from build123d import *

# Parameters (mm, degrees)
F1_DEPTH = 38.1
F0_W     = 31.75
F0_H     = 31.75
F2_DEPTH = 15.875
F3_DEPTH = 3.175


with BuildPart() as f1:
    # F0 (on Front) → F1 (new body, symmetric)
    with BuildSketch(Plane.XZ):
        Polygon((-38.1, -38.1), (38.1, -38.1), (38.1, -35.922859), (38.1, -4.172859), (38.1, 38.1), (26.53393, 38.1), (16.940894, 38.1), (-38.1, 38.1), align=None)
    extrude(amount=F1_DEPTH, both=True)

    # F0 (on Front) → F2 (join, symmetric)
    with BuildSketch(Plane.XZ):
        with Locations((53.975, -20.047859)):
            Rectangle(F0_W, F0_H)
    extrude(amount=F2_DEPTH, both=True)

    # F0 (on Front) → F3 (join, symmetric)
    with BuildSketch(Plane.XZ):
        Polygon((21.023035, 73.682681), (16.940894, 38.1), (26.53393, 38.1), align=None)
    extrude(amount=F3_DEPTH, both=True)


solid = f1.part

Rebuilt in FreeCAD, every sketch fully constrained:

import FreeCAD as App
import Part
import Sketcher
from FreeCAD import Vector
Q = App.Units.Quantity

doc = App.newDocument("Part")
params = doc.addObject("Spreadsheet::Sheet", "Params")
for row, (alias, value) in enumerate([
    ("sketch1_width", "3 in"),
    ("pad1_length", "3 in"),
    ("sketch2_width", "1.25 in"),
    ("pad2_length", "1.25 in"),
    ("pad3_length", "0.25 in"),
], start=1):
    params.set(f"A{row}", alias)
    params.set(f"B{row}", "=" + value)
    params.setAlias(f"B{row}", alias)

body = doc.addObject("PartDesign::Body", "Body")

# Sketch on XZ plane
sketch1 = body.newObject("Sketcher::SketchObject", "Sketch")
sketch1.AttachmentSupport = (doc.getObject("XZ_Plane"), [""])
sketch1.MapMode = "FlatFace"
sketch1.addGeometry([
    Part.LineSegment(Vector(-38, -38, 0), Vector(38, -38, 0)),
    Part.LineSegment(Vector(38, -38, 0), Vector(38, 38, 0)),
    Part.LineSegment(Vector(38, 38, 0), Vector(-38, 38, 0)),
    Part.LineSegment(Vector(-38, 38, 0), Vector(-38, -38, 0)),
], False)
sketch1.addConstraint([
    Sketcher.Constraint("Coincident", 0, 2, 1, 1),
    Sketcher.Constraint("Coincident", 1, 2, 2, 1),
    Sketcher.Constraint("Coincident", 2, 2, 3, 1),
    Sketcher.Constraint("Coincident", 3, 2, 0, 1),
    Sketcher.Constraint("Horizontal", 0),
    Sketcher.Constraint("Vertical", 1),
    Sketcher.Constraint("Horizontal", 2),
    Sketcher.Constraint("Vertical", 3),
    Sketcher.Constraint("Symmetric", 0, 2, 2, 2, -1, 1),
    Sketcher.Constraint("Equal", 2, 1),
    Sketcher.Constraint("DistanceX", 0, 1, 0, 2, Q("3 in")),
])
sketch1.setExpression("Constraints[10]", "Params.sketch1_width")
pad1 = body.newObject("PartDesign::Pad", "Pad")
pad1.Profile = sketch1
pad1.setExpression("Length", "Params.pad1_length")
pad1.Midplane = True

# Sketch on XZ plane
sketch2 = body.newObject("Sketcher::SketchObject", "Sketch001")
sketch2.AttachmentSupport = (doc.getObject("XZ_Plane"), [""])
sketch2.MapMode = "FlatFace"
sketch2.addGeometry([
    Part.LineSegment(Vector(38, -4, 0), Vector(38, -36, 0)),
    Part.LineSegment(Vector(38, -36, 0), Vector(70, -36, 0)),
    Part.LineSegment(Vector(70, -36, 0), Vector(70, -4, 0)),
    Part.LineSegment(Vector(70, -4, 0), Vector(38, -4, 0)),
], False)
sketch2.addConstraint([
    Sketcher.Constraint("Coincident", 0, 2, 1, 1),
    Sketcher.Constraint("Coincident", 1, 2, 2, 1),
    Sketcher.Constraint("Coincident", 2, 2, 3, 1),
    Sketcher.Constraint("Coincident", 3, 2, 0, 1),
    Sketcher.Constraint("Vertical", 0),
    Sketcher.Constraint("Horizontal", 1),
    Sketcher.Constraint("Vertical", 2),
    Sketcher.Constraint("Horizontal", 3),
    Sketcher.Constraint("Equal", 3, 0),
    Sketcher.Constraint("DistanceX", 1, 1, 1, 2, Q("1.25 in")),
    Sketcher.Constraint("DistanceX", -1, 1, 0, 2, Q("1.5 in")),
    Sketcher.Constraint("DistanceY", 0, 2, -1, 1, Q("35.922859 mm")),
])
sketch2.setExpression("Constraints[9]", "Params.sketch2_width")
pad2 = body.newObject("PartDesign::Pad", "Pad001")
pad2.Profile = sketch2
pad2.setExpression("Length", "Params.pad2_length")
pad2.Midplane = True

# Sketch on XZ plane
sketch3 = body.newObject("Sketcher::SketchObject", "Sketch002")
sketch3.AttachmentSupport = (doc.getObject("XZ_Plane"), [""])
sketch3.MapMode = "FlatFace"
sketch3.addGeometry([
    Part.LineSegment(Vector(21, 74, 0), Vector(17, 38, 0)),
    Part.LineSegment(Vector(17, 38, 0), Vector(27, 38, 0)),
    Part.LineSegment(Vector(27, 38, 0), Vector(21, 74, 0)),
], False)
sketch3.addConstraint([
    Sketcher.Constraint("Coincident", 0, 2, 1, 1),
    Sketcher.Constraint("Coincident", 1, 2, 2, 1),
    Sketcher.Constraint("Coincident", 2, 2, 0, 1),
    Sketcher.Constraint("Horizontal", 1),
    Sketcher.Constraint("DistanceY", -1, 1, 0, 2, Q("1.5 in")),
    Sketcher.Constraint("DistanceX", 1, 1, 1, 2, Q("9.593036 mm")),
    Sketcher.Constraint("DistanceX", -1, 1, 1, 2, Q("26.53393 mm")),
    Sketcher.Constraint("DistanceY", -1, 1, 2, 2, Q("73.682681 mm")),
    Sketcher.Constraint("DistanceX", 0, 2, 2, 2, Q("4.082141 mm")),
])
pad3 = body.newObject("PartDesign::Pad", "Pad002")
pad3.Profile = sketch3
pad3.setExpression("Length", "Params.pad3_length")
pad3.Midplane = True

doc.recompute()
